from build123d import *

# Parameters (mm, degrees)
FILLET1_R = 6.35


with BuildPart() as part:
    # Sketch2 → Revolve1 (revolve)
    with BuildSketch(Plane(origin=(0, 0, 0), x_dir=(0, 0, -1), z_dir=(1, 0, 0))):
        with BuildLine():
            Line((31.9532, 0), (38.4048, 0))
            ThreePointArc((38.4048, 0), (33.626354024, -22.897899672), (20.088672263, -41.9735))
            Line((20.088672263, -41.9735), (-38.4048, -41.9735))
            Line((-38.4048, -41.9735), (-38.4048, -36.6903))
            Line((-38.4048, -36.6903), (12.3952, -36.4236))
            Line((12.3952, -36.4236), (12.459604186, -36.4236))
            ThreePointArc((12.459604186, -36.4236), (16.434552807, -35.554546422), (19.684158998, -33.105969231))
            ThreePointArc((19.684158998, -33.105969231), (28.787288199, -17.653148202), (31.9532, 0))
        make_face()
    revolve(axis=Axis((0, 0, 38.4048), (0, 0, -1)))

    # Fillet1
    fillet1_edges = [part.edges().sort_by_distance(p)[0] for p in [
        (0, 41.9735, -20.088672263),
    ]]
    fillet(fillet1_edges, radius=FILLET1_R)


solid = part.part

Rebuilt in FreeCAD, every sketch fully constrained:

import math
import FreeCAD as App
import Part
import Sketcher
from FreeCAD import Vector
Q = App.Units.Quantity


def edges_at(feature, points):
    """Names of the edges that pass closest to the given points."""
    edges = feature.Shape.Edges
    near = lambda p: min(range(len(edges)), key=lambda i: edges[i].distToShape(Part.Vertex(*p))[0])
    return sorted({f"Edge{near(p) + 1}" for p in points})

doc = App.newDocument("Part")
body = doc.addObject("PartDesign::Body", "Body")

# Sketch on YZ plane
sketch1 = body.newObject("Sketcher::SketchObject", "Sketch")
sketch1.AttachmentSupport = (doc.getObject("YZ_Plane"), [""])
sketch1.MapMode = "FlatFace"
sketch1.addGeometry([
    Part.LineSegment(Vector(0, -38.4, 0), Vector(0, -31.95, 0)),  # 0
    Part.ArcOfCircle(Part.Circle(Vector(0, 18.85, 0), Vector(0, 0, 1), 50.8), math.radians(-131), math.radians(-90)),  # 1
    Part.ArcOfCircle(Part.Circle(Vector(-26.9, -12.46, 0), Vector(0, 0, 1), 9.53), math.radians(180), math.radians(229)),  # 2
    Part.LineSegment(Vector(-36.42, -12.46, 0), Vector(-36.42, -12.4, 0)),  # 3
    Part.LineSegment(Vector(-36.42, -12.4, 0), Vector(-36.69, 38.4, 0)),  # 4
    Part.LineSegment(Vector(-36.69, 38.4, 0), Vector(-41.97, 38.4, 0)),  # 5
    Part.LineSegment(Vector(-41.97, 38.4, 0), Vector(-41.97, -20.09, 0)),  # 6
    Part.ArcOfCircle(Part.Circle(Vector(0, 18.85, 0), Vector(0, 0, 1), 57.25), math.radians(-137), math.radians(-90)),  # 7
], False)
sketch1.addConstraint([
    Sketcher.Constraint("Coincident", 0, 2, 1, 2),
    Sketcher.Constraint("Tangent", 1, 1, 2, 2),
    Sketcher.Constraint("Tangent", 2, 1, 3, 1),
    Sketcher.Constraint("Coincident", 3, 2, 4, 1),
    Sketcher.Constraint("Coincident", 4, 2, 5, 1),
    Sketcher.Constraint("Coincident", 5, 2, 6, 1),
    Sketcher.Constraint("Coincident", 6, 2, 7, 1),
    Sketcher.Constraint("Coincident", 7, 2, 0, 1),
    Sketcher.Constraint("Vertical", 0),
    Sketcher.Constraint("Vertical", 3),
    Sketcher.Constraint("Horizontal", 5),
    Sketcher.Constraint("Vertical", 6),
    Sketcher.Constraint("Coincident", 7, 3, 1, 3),
    Sketcher.Constraint("PointOnObject", 1, 3, -2),
    Sketcher.Constraint("PointOnObject", 0, 2, -2),
    Sketcher.Constraint("Radius", 1, Q("2 in")),
    Sketcher.Constraint("Radius", 2, Q("0.375 in")),
    Sketcher.Constraint("Radius", 7, Q("2.254 in")),
    Sketcher.Constraint("DistanceY", 3, 2, 4, 2, Q("2 in")),
    Sketcher.Constraint("DistanceX", 5, 2, 5, 1, Q("0.208 in")),
    Sketcher.Constraint("DistanceY", 0, 2, 3, 2, Q("0.77 in")),
    Sketcher.Constraint("DistanceY", -1, 1, 1, 3, Q("0.742 in")),
    Sketcher.Constraint("DistanceX", 2, 3, -1, 1, Q("1.059 in")),
    Sketcher.Constraint("DistanceX", 4, 2, -1, 1, Q("1.4445 in")),
])
revolution = body.newObject("PartDesign::Revolution", "Revolution")
revolution.Profile = sketch1
revolution.ReferenceAxis = (sketch1, ["V_Axis"])
revolution.Angle = 360
doc.recompute()

fillet = body.newObject("PartDesign::Fillet", "Fillet")
fillet.Base = (revolution, edges_at(revolution, [(0, 41.974, -20.089)]))
fillet.Radius = Q("0.25 in")

doc.recompute()
